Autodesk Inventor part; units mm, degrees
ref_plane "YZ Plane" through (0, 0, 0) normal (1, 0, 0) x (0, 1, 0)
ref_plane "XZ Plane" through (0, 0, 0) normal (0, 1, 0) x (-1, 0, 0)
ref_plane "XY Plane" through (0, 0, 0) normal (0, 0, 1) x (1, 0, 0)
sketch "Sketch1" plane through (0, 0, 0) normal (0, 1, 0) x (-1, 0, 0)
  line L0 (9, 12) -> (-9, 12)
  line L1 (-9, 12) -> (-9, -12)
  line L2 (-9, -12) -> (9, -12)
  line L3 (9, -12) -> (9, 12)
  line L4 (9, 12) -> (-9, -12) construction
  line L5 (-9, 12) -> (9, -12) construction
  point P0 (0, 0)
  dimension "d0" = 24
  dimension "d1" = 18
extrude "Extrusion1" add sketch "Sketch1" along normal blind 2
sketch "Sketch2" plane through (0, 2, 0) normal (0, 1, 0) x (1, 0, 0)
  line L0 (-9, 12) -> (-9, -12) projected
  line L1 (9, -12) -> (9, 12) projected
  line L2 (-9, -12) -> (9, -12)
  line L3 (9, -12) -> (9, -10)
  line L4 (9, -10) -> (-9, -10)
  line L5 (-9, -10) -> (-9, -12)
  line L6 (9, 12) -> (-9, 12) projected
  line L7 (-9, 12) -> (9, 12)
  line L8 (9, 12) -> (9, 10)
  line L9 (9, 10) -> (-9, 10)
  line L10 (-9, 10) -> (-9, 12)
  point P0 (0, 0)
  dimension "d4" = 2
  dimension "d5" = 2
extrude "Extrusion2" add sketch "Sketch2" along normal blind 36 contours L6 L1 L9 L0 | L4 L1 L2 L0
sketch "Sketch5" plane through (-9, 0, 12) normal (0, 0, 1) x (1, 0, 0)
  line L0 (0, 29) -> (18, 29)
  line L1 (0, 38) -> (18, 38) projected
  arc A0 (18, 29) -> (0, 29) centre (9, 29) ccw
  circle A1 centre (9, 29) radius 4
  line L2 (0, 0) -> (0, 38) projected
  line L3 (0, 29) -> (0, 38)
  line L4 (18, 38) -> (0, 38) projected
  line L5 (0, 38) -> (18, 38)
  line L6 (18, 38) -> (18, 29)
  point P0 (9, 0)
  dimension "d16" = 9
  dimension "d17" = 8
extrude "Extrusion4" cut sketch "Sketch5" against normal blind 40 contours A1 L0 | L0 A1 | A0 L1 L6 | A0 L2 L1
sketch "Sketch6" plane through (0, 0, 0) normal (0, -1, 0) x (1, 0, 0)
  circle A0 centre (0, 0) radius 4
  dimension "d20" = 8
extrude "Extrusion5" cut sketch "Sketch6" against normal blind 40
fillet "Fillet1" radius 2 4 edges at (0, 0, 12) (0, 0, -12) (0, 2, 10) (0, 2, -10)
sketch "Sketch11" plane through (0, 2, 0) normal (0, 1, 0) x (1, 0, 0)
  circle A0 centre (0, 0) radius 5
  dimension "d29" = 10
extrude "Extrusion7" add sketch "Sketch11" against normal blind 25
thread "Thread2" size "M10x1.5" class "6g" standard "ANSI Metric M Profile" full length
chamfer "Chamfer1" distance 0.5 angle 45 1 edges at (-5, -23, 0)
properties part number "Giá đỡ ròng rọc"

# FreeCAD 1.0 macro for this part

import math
import FreeCAD as App
import Part
import Sketcher

V = App.Vector


def edges_at(feature, points):
    """Names of the edges that pass closest to the given points."""
    edges = feature.Shape.Edges
    near = lambda p: min(range(len(edges)), key=lambda i: edges[i].distToShape(Part.Vertex(*p))[0])
    return sorted({f"Edge{near(p) + 1}" for p in points})


def add_polygon(sketch, points):
    """Adds a closed chain of lines whose ends are joined by coincident constraints."""
    first, n = sketch.GeometryCount, len(points)
    for a, b in zip(points, points[1:] + points[:1]):
        sketch.addGeometry(Part.LineSegment(App.Vector(*a, 0), App.Vector(*b, 0)), False)
    for i in range(n):
        sketch.addConstraint(Sketcher.Constraint("Coincident", first + i, 2, first + (i + 1) % n, 1))

doc = App.newDocument("Part")
body = doc.addObject("PartDesign::Body", "Body")

sketch1 = body.newObject("Sketcher::SketchObject", "Sketch")
sketch1.AttachmentSupport = (doc.getObject("XZ_Plane"), [""])
sketch1.MapMode = "FlatFace"
add_polygon(sketch1, [(-9, -12), (-9, 12), (9, 12), (9, -12)])
sketch1.addConstraint([
    Sketcher.Constraint("Vertical", 0),
    Sketcher.Constraint("Horizontal", 1),
    Sketcher.Constraint("Vertical", 2),
    Sketcher.Constraint("Horizontal", 3),
    Sketcher.Constraint("Symmetric", 0, 2, 2, 2, -1, 1),
    Sketcher.Constraint("DistanceX", 1, 1, 1, 2, 18.0),
    Sketcher.Constraint("DistanceY", 0, 1, 0, 2, 24.0),
])
pad1 = body.newObject("PartDesign::Pad", "Pad")
pad1.Profile = sketch1
pad1.Length = 2
pad1.Reversed = True

sketch2 = body.newObject("Sketcher::SketchObject", "Sketch001")
sketch2.AttachmentSupport = (doc.getObject("XZ_Plane"), [""])
sketch2.MapMode = "FlatFace"
sketch2.AttachmentOffset = App.Placement(V(0, 0, -2), App.Rotation())
add_polygon(sketch2, [(9, -12), (-9, -12), (-9, -10), (9, -10)])
add_polygon(sketch2, [(9, 10), (-9, 10), (-9, 12), (9, 12)])
sketch2.addConstraint([
    Sketcher.Constraint("Horizontal", 0),
    Sketcher.Constraint("Vertical", 1),
    Sketcher.Constraint("Horizontal", 2),
    Sketcher.Constraint("Vertical", 3),
    Sketcher.Constraint("Horizontal", 4),
    Sketcher.Constraint("Vertical", 5),
    Sketcher.Constraint("Horizontal", 6),
    Sketcher.Constraint("Vertical", 7),
    Sketcher.Constraint("Symmetric", 2, 2, 4, 2, -1, 1),
    Sketcher.Constraint("Symmetric", 0, 2, 6, 2, -1, 1),
    Sketcher.Constraint("Vertical", 1, 2, 4, 2),
    Sketcher.Constraint("DistanceY", 1, 1, 1, 2, 2.0),
    Sketcher.Constraint("DistanceX", 0, 2, 0, 1, 18.0),
    Sketcher.Constraint("DistanceY", 0, 2, -1, 1, 12.0),
])
pad2 = body.newObject("PartDesign::Pad", "Pad001")
pad2.Profile = sketch2
pad2.Length = 36
pad2.Reversed = True

sketch3 = body.newObject("Sketcher::SketchObject", "Sketch002")
sketch3.AttachmentSupport = (doc.getObject("XY_Plane"), [""])
sketch3.MapMode = "FlatFace"
sketch3.AttachmentOffset = App.Placement(V(0, 0, 12), App.Rotation())
sketch3.addGeometry([
    Part.Circle(V(0, 29, 0), V(0, 0, 1), 4),
    Part.ArcOfCircle(Part.Circle(V(0, 29, 0), V(0, 0, 1), 9), math.radians(0), math.radians(90)),
    Part.LineSegment(V(9, 29, 0), V(9, 38, 0)),
    Part.LineSegment(V(9, 38, 0), V(0, 38, 0)),
    Part.ArcOfCircle(Part.Circle(V(0, 29, 0), V(0, 0, 1), 9), math.radians(90), math.radians(180)),
    Part.LineSegment(V(0, 38, 0), V(-9, 38, 0)),
    Part.LineSegment(V(-9, 38, 0), V(-9, 29, 0)),
], False)
sketch3.addConstraint([
    Sketcher.Constraint("Tangent", 1, 1, 2, 1),
    Sketcher.Constraint("Coincident", 2, 2, 3, 1),
    Sketcher.Constraint("Tangent", 3, 2, 1, 2),
    Sketcher.Constraint("Tangent", 4, 1, 5, 1),
    Sketcher.Constraint("Coincident", 5, 2, 6, 1),
    Sketcher.Constraint("Tangent", 6, 2, 4, 2),
    Sketcher.Constraint("Vertical", 2),
    Sketcher.Constraint("Horizontal", 3),
    Sketcher.Constraint("Horizontal", 5),
    Sketcher.Constraint("Vertical", 6),
    Sketcher.Constraint("Coincident", 1, 3, 0, 3),
    Sketcher.Constraint("Coincident", 4, 3, 0, 3),
    Sketcher.Constraint("Equal", 1, 4),
    Sketcher.Constraint("PointOnObject", 0, 3, -2),
    Sketcher.Constraint("Diameter", 0, 8.0),
    Sketcher.Constraint("Radius", 1, 9.0),
    Sketcher.Constraint("DistanceY", -1, 1, 0, 3, 29.0),
])
pocket1 = body.newObject("PartDesign::Pocket", "Pocket")
pocket1.Profile = sketch3
pocket1.Length = 40

sketch4 = body.newObject("Sketcher::SketchObject", "Sketch003")
sketch4.AttachmentSupport = (doc.getObject("XZ_Plane"), [""])
sketch4.MapMode = "FlatFace"
sketch4.addGeometry(Part.Circle(V(0, 0, 0), V(0, 0, 1), 4), False)
sketch4.addConstraint([
    Sketcher.Constraint("Coincident", 0, 3, -1, 1),
    Sketcher.Constraint("Diameter", 0, 8.0),
])
pocket2 = body.newObject("PartDesign::Pocket", "Pocket001")
pocket2.Profile = sketch4
pocket2.Length = 40
doc.recompute()

fillet = body.newObject("PartDesign::Fillet", "Fillet")
fillet.Base = (pocket2, edges_at(pocket2, [
    (0, 0, 12),
    (0, 0, -12),
    (0, 2, 10),
    (0, 2, -10),
]))
fillet.Radius = 2

sketch5 = body.newObject("Sketcher::SketchObject", "Sketch004")
sketch5.AttachmentSupport = (doc.getObject("XZ_Plane"), [""])
sketch5.MapMode = "FlatFace"
sketch5.AttachmentOffset = App.Placement(V(0, 0, -2), App.Rotation())
sketch5.addGeometry(Part.Circle(V(0, 0, 0), V(0, 0, 1), 5), False)
sketch5.addConstraint([
    Sketcher.Constraint("Coincident", 0, 3, -1, 1),
    Sketcher.Constraint("Diameter", 0, 10.0),
])
pad3 = body.newObject("PartDesign::Pad", "Pad002")
pad3.Profile = sketch5
pad3.Length = 25
doc.recompute()

chamfer = body.newObject("PartDesign::Chamfer", "Chamfer")
chamfer.Base = (pad3, edges_at(pad3, [(-5, -23, 0)]))
chamfer.Size = 0.5

doc.recompute()
